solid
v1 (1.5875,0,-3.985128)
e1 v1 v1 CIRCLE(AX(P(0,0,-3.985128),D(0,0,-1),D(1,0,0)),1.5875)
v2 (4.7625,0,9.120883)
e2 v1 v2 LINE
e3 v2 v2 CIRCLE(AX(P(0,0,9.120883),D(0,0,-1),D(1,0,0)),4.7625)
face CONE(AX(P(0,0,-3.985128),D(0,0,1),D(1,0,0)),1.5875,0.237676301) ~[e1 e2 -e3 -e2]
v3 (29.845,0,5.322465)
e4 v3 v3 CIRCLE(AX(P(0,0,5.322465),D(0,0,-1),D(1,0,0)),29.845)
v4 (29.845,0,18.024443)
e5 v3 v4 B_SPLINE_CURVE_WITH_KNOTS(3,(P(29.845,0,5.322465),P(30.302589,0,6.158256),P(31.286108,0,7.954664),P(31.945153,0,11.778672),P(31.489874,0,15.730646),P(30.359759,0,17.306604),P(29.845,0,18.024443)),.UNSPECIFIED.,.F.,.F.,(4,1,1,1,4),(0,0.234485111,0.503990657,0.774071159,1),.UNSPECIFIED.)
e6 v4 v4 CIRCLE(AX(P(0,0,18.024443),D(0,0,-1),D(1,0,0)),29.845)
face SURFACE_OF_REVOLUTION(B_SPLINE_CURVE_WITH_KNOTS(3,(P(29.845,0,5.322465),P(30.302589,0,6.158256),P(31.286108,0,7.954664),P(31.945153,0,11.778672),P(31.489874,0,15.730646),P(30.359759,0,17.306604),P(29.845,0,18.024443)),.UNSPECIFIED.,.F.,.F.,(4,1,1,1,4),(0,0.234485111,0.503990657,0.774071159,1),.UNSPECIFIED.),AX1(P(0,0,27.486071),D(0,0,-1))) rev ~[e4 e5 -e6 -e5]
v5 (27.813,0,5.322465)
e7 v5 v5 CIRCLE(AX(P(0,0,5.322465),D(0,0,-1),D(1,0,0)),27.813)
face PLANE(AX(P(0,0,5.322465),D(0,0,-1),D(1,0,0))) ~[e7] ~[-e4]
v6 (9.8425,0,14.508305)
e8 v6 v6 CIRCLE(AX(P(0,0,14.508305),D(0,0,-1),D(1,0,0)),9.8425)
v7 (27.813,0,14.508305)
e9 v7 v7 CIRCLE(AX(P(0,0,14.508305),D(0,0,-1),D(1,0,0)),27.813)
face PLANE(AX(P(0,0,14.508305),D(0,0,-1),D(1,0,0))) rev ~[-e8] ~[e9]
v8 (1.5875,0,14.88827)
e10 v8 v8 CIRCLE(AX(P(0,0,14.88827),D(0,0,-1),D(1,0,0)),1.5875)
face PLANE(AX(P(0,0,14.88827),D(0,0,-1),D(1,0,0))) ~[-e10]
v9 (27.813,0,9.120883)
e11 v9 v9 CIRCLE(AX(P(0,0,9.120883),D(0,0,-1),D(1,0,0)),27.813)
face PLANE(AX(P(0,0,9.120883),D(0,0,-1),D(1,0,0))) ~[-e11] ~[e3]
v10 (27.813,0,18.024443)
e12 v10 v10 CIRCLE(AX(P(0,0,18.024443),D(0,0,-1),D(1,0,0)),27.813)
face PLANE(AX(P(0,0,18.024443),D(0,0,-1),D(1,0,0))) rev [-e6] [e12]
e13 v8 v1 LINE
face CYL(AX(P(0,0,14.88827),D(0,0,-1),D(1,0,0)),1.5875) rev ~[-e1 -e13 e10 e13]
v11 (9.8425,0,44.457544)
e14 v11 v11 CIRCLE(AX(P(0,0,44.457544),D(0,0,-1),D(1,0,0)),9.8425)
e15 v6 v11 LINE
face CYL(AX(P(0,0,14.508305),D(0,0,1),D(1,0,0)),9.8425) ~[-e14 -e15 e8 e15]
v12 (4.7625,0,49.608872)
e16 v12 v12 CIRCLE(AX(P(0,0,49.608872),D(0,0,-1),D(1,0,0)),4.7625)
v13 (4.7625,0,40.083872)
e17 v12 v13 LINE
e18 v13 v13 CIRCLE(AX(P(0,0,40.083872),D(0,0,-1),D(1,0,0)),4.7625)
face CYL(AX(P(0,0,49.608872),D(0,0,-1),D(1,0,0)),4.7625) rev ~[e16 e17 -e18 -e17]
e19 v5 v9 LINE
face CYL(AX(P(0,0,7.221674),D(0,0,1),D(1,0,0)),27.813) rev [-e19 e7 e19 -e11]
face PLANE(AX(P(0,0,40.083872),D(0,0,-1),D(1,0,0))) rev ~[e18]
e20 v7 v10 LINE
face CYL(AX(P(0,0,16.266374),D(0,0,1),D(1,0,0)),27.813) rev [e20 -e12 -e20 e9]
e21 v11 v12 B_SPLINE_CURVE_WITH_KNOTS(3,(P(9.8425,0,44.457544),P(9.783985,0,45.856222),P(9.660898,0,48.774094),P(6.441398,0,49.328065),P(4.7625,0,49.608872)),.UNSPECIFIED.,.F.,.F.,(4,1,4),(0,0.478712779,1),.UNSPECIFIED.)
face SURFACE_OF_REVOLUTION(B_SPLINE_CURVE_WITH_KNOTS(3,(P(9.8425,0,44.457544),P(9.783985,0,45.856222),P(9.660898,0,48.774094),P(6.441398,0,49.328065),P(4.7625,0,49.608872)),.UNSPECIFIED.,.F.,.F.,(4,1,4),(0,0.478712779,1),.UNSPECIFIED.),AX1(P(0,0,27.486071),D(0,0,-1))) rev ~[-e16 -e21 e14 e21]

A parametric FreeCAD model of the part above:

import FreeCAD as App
import Part
import Sketcher
Q = App.Units.Quantity

doc = App.newDocument("Part")
body = doc.addObject("PartDesign::Body", "Body")

sketch1 = doc.addObject("Sketcher::SketchObject", "Sketch")
body.addObject(sketch1)
sketch1.AttachmentSupport = (doc.XZ_Plane, [""])
sketch1.MapMode = "FlatFace"
sketch1.addGeometry(Part.BSplineCurve([App.Vector(9.8425, 44.457544, 0), App.Vector(9.783985, 45.856222, 0), App.Vector(9.660898, 48.774094, 0), App.Vector(6.441398, 49.328065, 0), App.Vector(4.7625, 49.608872, 0)], [4, 1, 4], [0, 0.478712779, 1], False, 3, [1, 1, 1, 1, 1], False), False)
sketch1.addGeometry(Part.LineSegment(App.Vector(4.7625, 49.608872, 0), App.Vector(4.7625, 40.083872, 0)), False)
sketch1.addGeometry(Part.LineSegment(App.Vector(4.7625, 40.083872, 0), App.Vector(0, 40.083872, 0)), False)
sketch1.addGeometry(Part.LineSegment(App.Vector(0, 40.083872, 0), App.Vector(0, 14.88827, 0)), False)
sketch1.addGeometry(Part.LineSegment(App.Vector(0, 14.88827, 0), App.Vector(1.5875, 14.88827, 0)), False)
sketch1.addGeometry(Part.LineSegment(App.Vector(1.5875, 14.88827, 0), App.Vector(1.5875, -3.985128, 0)), False)
sketch1.addGeometry(Part.LineSegment(App.Vector(1.5875, -3.985128, 0), App.Vector(4.7625, 9.120883, 0)), False)
sketch1.addGeometry(Part.LineSegment(App.Vector(4.7625, 9.120883, 0), App.Vector(27.813, 9.120883, 0)), False)
sketch1.addGeometry(Part.LineSegment(App.Vector(27.813, 9.120883, 0), App.Vector(27.813, 5.322465, 0)), False)
sketch1.addGeometry(Part.LineSegment(App.Vector(27.813, 5.322465, 0), App.Vector(29.845, 5.322465, 0)), False)
sketch1.addGeometry(Part.BSplineCurve([App.Vector(29.845, 5.322465, 0), App.Vector(30.302589, 6.158256, 0), App.Vector(31.286108, 7.954664, 0), App.Vector(31.945153, 11.778672, 0), App.Vector(31.489874, 15.730646, 0), App.Vector(30.359759, 17.306604, 0), App.Vector(29.845, 18.024443, 0)], [4, 1, 1, 1, 4], [0, 0.234485111, 0.503990657, 0.774071159, 1], False, 3, [1, 1, 1, 1, 1, 1, 1], False), False)
sketch1.addGeometry(Part.LineSegment(App.Vector(29.845, 18.024443, 0), App.Vector(27.813, 18.024443, 0)), False)
sketch1.addGeometry(Part.LineSegment(App.Vector(27.813, 18.024443, 0), App.Vector(27.813, 14.508305, 0)), False)
sketch1.addGeometry(Part.LineSegment(App.Vector(27.813, 14.508305, 0), App.Vector(9.8425, 14.508305, 0)), False)
sketch1.addGeometry(Part.LineSegment(App.Vector(9.8425, 14.508305, 0), App.Vector(9.8425, 44.457544, 0)), False)
sketch1.addConstraint(Sketcher.Constraint("Block", 0))
sketch1.addConstraint(Sketcher.Constraint("Block", 10))
sketch1.addConstraint(Sketcher.Constraint("Coincident", 0, 2, 1, 1))
sketch1.addConstraint(Sketcher.Constraint("Coincident", 1, 2, 2, 1))
sketch1.addConstraint(Sketcher.Constraint("Coincident", 2, 2, 3, 1))
sketch1.addConstraint(Sketcher.Constraint("Coincident", 3, 2, 4, 1))
sketch1.addConstraint(Sketcher.Constraint("Coincident", 4, 2, 5, 1))
sketch1.addConstraint(Sketcher.Constraint("Coincident", 5, 2, 6, 1))
sketch1.addConstraint(Sketcher.Constraint("Coincident", 6, 2, 7, 1))
sketch1.addConstraint(Sketcher.Constraint("Coincident", 7, 2, 8, 1))
sketch1.addConstraint(Sketcher.Constraint("Coincident", 8, 2, 9, 1))
sketch1.addConstraint(Sketcher.Constraint("Coincident", 9, 2, 10, 1))
sketch1.addConstraint(Sketcher.Constraint("Coincident", 10, 2, 11, 1))
sketch1.addConstraint(Sketcher.Constraint("Coincident", 11, 2, 12, 1))
sketch1.addConstraint(Sketcher.Constraint("Coincident", 12, 2, 13, 1))
sketch1.addConstraint(Sketcher.Constraint("Coincident", 13, 2, 14, 1))
sketch1.addConstraint(Sketcher.Constraint("Coincident", 14, 2, 0, 1))
sketch1.addConstraint(Sketcher.Constraint("Vertical", 1))
sketch1.addConstraint(Sketcher.Constraint("Horizontal", 2))
sketch1.addConstraint(Sketcher.Constraint("Vertical", 3))
sketch1.addConstraint(Sketcher.Constraint("Horizontal", 4))
sketch1.addConstraint(Sketcher.Constraint("Vertical", 5))
sketch1.addConstraint(Sketcher.Constraint("Horizontal", 7))
sketch1.addConstraint(Sketcher.Constraint("Vertical", 8))
sketch1.addConstraint(Sketcher.Constraint("Horizontal", 9))
sketch1.addConstraint(Sketcher.Constraint("Horizontal", 11))
sketch1.addConstraint(Sketcher.Constraint("Vertical", 12))
sketch1.addConstraint(Sketcher.Constraint("Horizontal", 13))
sketch1.addConstraint(Sketcher.Constraint("Vertical", 14))
sketch1.addConstraint(Sketcher.Constraint("PointOnObject", 2, 2, -2))
sketch1.addConstraint(Sketcher.Constraint("Vertical", 1, 2, 6, 2))
sketch1.addConstraint(Sketcher.Constraint("Vertical", 8, 2, 11, 2))
sketch1.addConstraint(Sketcher.Constraint("DistanceX", 9, 1, 9, 2, Q("0.08 in")))
sketch1.addConstraint(Sketcher.Constraint("DistanceX", 4, 1, 4, 2, Q("0.0625 in")))
sketch1.addConstraint(Sketcher.Constraint("DistanceY", 1, 2, 1, 1, Q("0.375 in")))
sketch1.addConstraint(Sketcher.Constraint("DistanceY", 5, 2, 2, 2, Q("1.735 in")))
sketch1.addConstraint(Sketcher.Constraint("DistanceY", 8, 2, 8, 1, 3.798418))
sketch1.addConstraint(Sketcher.Constraint("DistanceY", 14, 1, 14, 2, 29.949239))
sketch1.addConstraint(Sketcher.Constraint("DistanceY", 3, 2, 3, 1, 25.195602))
revolution = doc.addObject("PartDesign::Revolution", "Revolution")
body.addObject(revolution)
revolution.Profile = sketch1
revolution.ReferenceAxis = (sketch1, ["V_Axis"])
revolution.Angle = 360

doc.recompute()
